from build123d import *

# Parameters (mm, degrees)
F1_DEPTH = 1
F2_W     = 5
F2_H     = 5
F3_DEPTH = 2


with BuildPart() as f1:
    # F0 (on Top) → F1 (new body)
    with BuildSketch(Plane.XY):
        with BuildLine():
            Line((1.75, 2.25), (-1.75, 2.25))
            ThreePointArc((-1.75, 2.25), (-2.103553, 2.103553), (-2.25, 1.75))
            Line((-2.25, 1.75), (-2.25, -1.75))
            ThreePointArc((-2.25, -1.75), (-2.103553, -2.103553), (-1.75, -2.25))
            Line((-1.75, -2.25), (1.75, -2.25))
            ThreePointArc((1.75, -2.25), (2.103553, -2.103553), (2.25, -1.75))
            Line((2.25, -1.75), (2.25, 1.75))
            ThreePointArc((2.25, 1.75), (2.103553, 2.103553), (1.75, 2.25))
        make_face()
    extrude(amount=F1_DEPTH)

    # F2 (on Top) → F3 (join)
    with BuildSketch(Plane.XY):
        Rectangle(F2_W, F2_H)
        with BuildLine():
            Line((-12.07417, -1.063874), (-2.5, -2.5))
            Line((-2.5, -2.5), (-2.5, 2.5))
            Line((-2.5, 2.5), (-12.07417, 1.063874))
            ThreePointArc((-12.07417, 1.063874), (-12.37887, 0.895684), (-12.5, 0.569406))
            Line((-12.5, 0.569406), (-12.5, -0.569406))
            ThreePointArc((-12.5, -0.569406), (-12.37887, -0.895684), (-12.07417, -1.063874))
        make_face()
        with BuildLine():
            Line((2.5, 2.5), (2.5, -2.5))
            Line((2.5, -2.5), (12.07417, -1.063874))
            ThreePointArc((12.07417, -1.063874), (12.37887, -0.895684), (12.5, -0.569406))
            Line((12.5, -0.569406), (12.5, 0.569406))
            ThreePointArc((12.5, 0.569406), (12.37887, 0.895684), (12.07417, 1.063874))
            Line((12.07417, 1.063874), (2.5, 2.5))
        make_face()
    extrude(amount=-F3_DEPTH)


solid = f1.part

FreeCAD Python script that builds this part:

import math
import FreeCAD as App
import Part
import Sketcher

V = App.Vector
Q = App.Units.Quantity

doc = App.newDocument("Part")
params = doc.addObject("Spreadsheet::Sheet", "Params")
for row, (alias, value) in enumerate([
    ("sketch1_radius", "0.500001 mm"),
    ("sketch1_width", "3.5 mm"),
    ("pad1_length", "1 mm"),
    ("sketch2_radius", "0.5 mm"),
    ("sketch2_width", "5 mm"),
    ("pad2_length", "2 mm"),
], start=1):
    params.set(f"A{row}", alias)
    params.set(f"B{row}", "=" + value)
    params.setAlias(f"B{row}", alias)

body = doc.addObject("PartDesign::Body", "Body")

# Sketch on XY plane
sketch1 = body.newObject("Sketcher::SketchObject", "Sketch")
sketch1.AttachmentSupport = (doc.getObject("XY_Plane"), [""])
sketch1.MapMode = "FlatFace"
sketch1.addGeometry(Part.LineSegment(V(1.75, 2.25, 0), V(-1.75, 2.25, 0)), False)
sketch1.addGeometry(Part.ArcOfCircle(Part.Circle(V(-1.749999, 1.749999, 0), V(0, 0, 1), 0.500001), math.radians(90.000153), math.radians(179.999847)), False)
sketch1.addGeometry(Part.LineSegment(V(-2.25, 1.75, 0), V(-2.25, -1.75, 0)), False)
sketch1.addGeometry(Part.ArcOfCircle(Part.Circle(V(-1.749999, -1.749999, 0), V(0, 0, 1), 0.500001), math.radians(-179.999847), math.radians(-90.000153)), False)
sketch1.addGeometry(Part.LineSegment(V(-1.75, -2.25, 0), V(1.75, -2.25, 0)), False)
sketch1.addGeometry(Part.ArcOfCircle(Part.Circle(V(1.749999, -1.749999, 0), V(0, 0, 1), 0.500001), math.radians(-89.999847), math.radians(-0.000153)), False)
sketch1.addGeometry(Part.LineSegment(V(2.25, -1.75, 0), V(2.25, 1.75, 0)), False)
sketch1.addGeometry(Part.ArcOfCircle(Part.Circle(V(1.749999, 1.749999, 0), V(0, 0, 1), 0.500001), math.radians(0.000153), math.radians(89.999847)), False)
sketch1.addConstraint(Sketcher.Constraint("Coincident", 0, 2, 1, 1))
sketch1.addConstraint(Sketcher.Constraint("Coincident", 1, 2, 2, 1))
sketch1.addConstraint(Sketcher.Constraint("Coincident", 2, 2, 3, 1))
sketch1.addConstraint(Sketcher.Constraint("Coincident", 3, 2, 4, 1))
sketch1.addConstraint(Sketcher.Constraint("Coincident", 4, 2, 5, 1))
sketch1.addConstraint(Sketcher.Constraint("Coincident", 5, 2, 6, 1))
sketch1.addConstraint(Sketcher.Constraint("Coincident", 6, 2, 7, 1))
sketch1.addConstraint(Sketcher.Constraint("Coincident", 7, 2, 0, 1))
sketch1.addConstraint(Sketcher.Constraint("Horizontal", 0))
sketch1.addConstraint(Sketcher.Constraint("Vertical", 2))
sketch1.addConstraint(Sketcher.Constraint("Horizontal", 4))
sketch1.addConstraint(Sketcher.Constraint("Vertical", 6))
sketch1.addConstraint(Sketcher.Constraint("Equal", 1, 3))
sketch1.addConstraint(Sketcher.Constraint("Equal", 3, 5))
sketch1.addConstraint(Sketcher.Constraint("Equal", 5, 7))
sketch1.addConstraint(Sketcher.Constraint("Symmetric", 1, 3, 5, 3, -1, 1))
sketch1.addConstraint(Sketcher.Constraint("Horizontal", 7, 3, 1, 2))
sketch1.addConstraint(Sketcher.Constraint("Horizontal", 5, 3, 2, 2))
sketch1.addConstraint(Sketcher.Constraint("Horizontal", 2, 2, 5, 2))
sketch1.addConstraint(Sketcher.Constraint("Horizontal", 1, 2, 6, 2))
sketch1.addConstraint(Sketcher.Constraint("Vertical", 3, 3, 0, 2))
sketch1.addConstraint(Sketcher.Constraint("Vertical", 0, 2, 3, 2))
sketch1.addConstraint(Sketcher.Constraint("Vertical", 7, 3, 4, 2))
sketch1.addConstraint(Sketcher.Constraint("Vertical", 4, 2, 7, 2))
sketch1.addConstraint(Sketcher.Constraint("Equal", 4, 2))
sketch1.addConstraint(Sketcher.Constraint("Radius", 1, Q("0.500001 mm")))
sketch1.addConstraint(Sketcher.Constraint("DistanceX", 0, 2, 0, 1, Q("3.5 mm")))
sketch1.setExpression("Constraints[25]", "Params.sketch1_radius")
sketch1.setExpression("Constraints[26]", "Params.sketch1_width")
pad1 = body.newObject("PartDesign::Pad", "Pad")
pad1.Profile = sketch1
pad1.setExpression("Length", "Params.pad1_length")

# Sketch on XY plane
sketch2 = body.newObject("Sketcher::SketchObject", "Sketch001")
sketch2.AttachmentSupport = (doc.getObject("XY_Plane"), [""])
sketch2.MapMode = "FlatFace"
sketch2.addGeometry(Part.LineSegment(V(-2.5, -2.5, 0), V(2.5, -2.5, 0)), False)
sketch2.addGeometry(Part.LineSegment(V(2.5, -2.5, 0), V(12.07417, -1.063874, 0)), False)
sketch2.addGeometry(Part.ArcOfCircle(Part.Circle(V(12, -0.569406, 0), V(0, 0, 1), 0.5), math.radians(-81.469244), math.radians(-0.00004)), False)
sketch2.addGeometry(Part.LineSegment(V(12.5, -0.569406, 0), V(12.5, 0.569406, 0)), False)
sketch2.addGeometry(Part.ArcOfCircle(Part.Circle(V(12, 0.569406, 0), V(0, 0, 1), 0.5), math.radians(0.00004), math.radians(81.469244)), False)
sketch2.addGeometry(Part.LineSegment(V(12.07417, 1.063874, 0), V(2.5, 2.5, 0)), False)
sketch2.addGeometry(Part.LineSegment(V(2.5, 2.5, 0), V(-2.5, 2.5, 0)), False)
sketch2.addGeometry(Part.LineSegment(V(-2.5, 2.5, 0), V(-12.07417, 1.063874, 0)), False)
sketch2.addGeometry(Part.ArcOfCircle(Part.Circle(V(-12, 0.569406, 0), V(0, 0, 1), 0.5), math.radians(98.530756), math.radians(179.99996)), False)
sketch2.addGeometry(Part.LineSegment(V(-12.5, 0.569406, 0), V(-12.5, -0.569406, 0)), False)
sketch2.addGeometry(Part.ArcOfCircle(Part.Circle(V(-12, -0.569406, 0), V(0, 0, 1), 0.5), math.radians(-179.99996), math.radians(-98.530756)), False)
sketch2.addGeometry(Part.LineSegment(V(-12.07417, -1.063874, 0), V(-2.5, -2.5, 0)), False)
sketch2.addConstraint(Sketcher.Constraint("Coincident", 0, 2, 1, 1))
sketch2.addConstraint(Sketcher.Constraint("Tangent", 1, 2, 2, 1))
sketch2.addConstraint(Sketcher.Constraint("Tangent", 2, 2, 3, 1))
sketch2.addConstraint(Sketcher.Constraint("Tangent", 3, 2, 4, 1))
sketch2.addConstraint(Sketcher.Constraint("Tangent", 4, 2, 5, 1))
sketch2.addConstraint(Sketcher.Constraint("Coincident", 5, 2, 6, 1))
sketch2.addConstraint(Sketcher.Constraint("Coincident", 6, 2, 7, 1))
sketch2.addConstraint(Sketcher.Constraint("Tangent", 7, 2, 8, 1))
sketch2.addConstraint(Sketcher.Constraint("Tangent", 8, 2, 9, 1))
sketch2.addConstraint(Sketcher.Constraint("Tangent", 9, 2, 10, 1))
sketch2.addConstraint(Sketcher.Constraint("Tangent", 10, 2, 11, 1))
sketch2.addConstraint(Sketcher.Constraint("Coincident", 11, 2, 0, 1))
sketch2.addConstraint(Sketcher.Constraint("Horizontal", 0))
sketch2.addConstraint(Sketcher.Constraint("Vertical", 3))
sketch2.addConstraint(Sketcher.Constraint("Horizontal", 6))
sketch2.addConstraint(Sketcher.Constraint("Vertical", 9))
sketch2.addConstraint(Sketcher.Constraint("Equal", 2, 4))
sketch2.addConstraint(Sketcher.Constraint("Equal", 4, 8))
sketch2.addConstraint(Sketcher.Constraint("Equal", 8, 10))
sketch2.addConstraint(Sketcher.Constraint("Symmetric", 2, 3, 8, 3, -1, 1))
sketch2.addConstraint(Sketcher.Constraint("Symmetric", 0, 2, 6, 2, -1, 1))
sketch2.addConstraint(Sketcher.Constraint("Symmetric", 4, 2, 10, 2, -1, 1))
sketch2.addConstraint(Sketcher.Constraint("Symmetric", 4, 2, 7, 2, -2))
sketch2.addConstraint(Sketcher.Constraint("Radius", 2, Q("0.5 mm")))
sketch2.addConstraint(Sketcher.Constraint("DistanceX", 0, 1, 0, 2, Q("5 mm")))
sketch2.addConstraint(Sketcher.Constraint("DistanceX", -1, 1, 2, 3, Q("12 mm")))
sketch2.addConstraint(Sketcher.Constraint("DistanceY", 0, 2, 5, 2, Q("5 mm")))
sketch2.addConstraint(Sketcher.Constraint("DistanceY", 3, 1, 3, 2, Q("1.138812 mm")))
sketch2.setExpression("Constraints[23]", "Params.sketch2_radius")
sketch2.setExpression("Constraints[24]", "Params.sketch2_width")
pad2 = body.newObject("PartDesign::Pad", "Pad001")
pad2.Profile = sketch2
pad2.setExpression("Length", "Params.pad2_length")
pad2.Reversed = True

doc.recompute()
